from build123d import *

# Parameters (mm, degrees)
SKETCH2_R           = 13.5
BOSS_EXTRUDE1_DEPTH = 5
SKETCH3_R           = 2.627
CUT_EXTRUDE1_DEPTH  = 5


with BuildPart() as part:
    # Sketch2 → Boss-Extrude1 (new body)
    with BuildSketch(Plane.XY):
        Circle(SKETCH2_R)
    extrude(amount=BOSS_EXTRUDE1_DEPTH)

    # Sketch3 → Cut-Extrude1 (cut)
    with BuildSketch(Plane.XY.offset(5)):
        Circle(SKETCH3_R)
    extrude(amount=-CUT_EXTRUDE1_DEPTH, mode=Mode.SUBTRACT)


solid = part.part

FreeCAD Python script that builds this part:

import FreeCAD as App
import Part
import Sketcher
from FreeCAD import Vector

doc = App.newDocument("Part")
params = doc.addObject("Spreadsheet::Sheet", "Params")
for row, (alias, value) in enumerate([
    ("sketch1_diameter", "27 mm"),
    ("pad1_length", "5 mm"),
    ("pocket1_length", "5 mm"),
], start=1):
    params.set(f"A{row}", alias)
    params.set(f"B{row}", "=" + value)
    params.setAlias(f"B{row}", alias)

body = doc.addObject("PartDesign::Body", "Body")

# Sketch on XY plane
sketch1 = body.newObject("Sketcher::SketchObject", "Sketch")
sketch1.AttachmentSupport = (doc.getObject("XY_Plane"), [""])
sketch1.MapMode = "FlatFace"
sketch1.addGeometry(Part.Circle(Vector(0, 0, 0), Vector(0, 0, 1), 14), False)
sketch1.addConstraint(Sketcher.Constraint("Coincident", 0, 3, -1, 1))
sketch1.addConstraint(Sketcher.Constraint("Diameter", 0, 27.0))
sketch1.setExpression("Constraints[1]", "Params.sketch1_diameter")
pad1 = body.newObject("PartDesign::Pad", "Pad")
pad1.Profile = sketch1
pad1.setExpression("Length", "Params.pad1_length")

# Sketch on XY plane
sketch2 = body.newObject("Sketcher::SketchObject", "Sketch001")
sketch2.AttachmentSupport = (doc.getObject("XY_Plane"), [""])
sketch2.MapMode = "FlatFace"
sketch2.AttachmentOffset = App.Placement(Vector(0, 0, 5), App.Rotation())
sketch2.addGeometry(Part.Circle(Vector(0, 0, 0), Vector(0, 0, 1), 2.6), False)
sketch2.addConstraint(Sketcher.Constraint("Coincident", 0, 3, -1, 1))
sketch2.addConstraint(Sketcher.Constraint("Diameter", 0, 5.254))
pocket1 = body.newObject("PartDesign::Pocket", "Pocket")
pocket1.Profile = sketch2
pocket1.setExpression("Length", "Params.pocket1_length")

doc.recompute()
